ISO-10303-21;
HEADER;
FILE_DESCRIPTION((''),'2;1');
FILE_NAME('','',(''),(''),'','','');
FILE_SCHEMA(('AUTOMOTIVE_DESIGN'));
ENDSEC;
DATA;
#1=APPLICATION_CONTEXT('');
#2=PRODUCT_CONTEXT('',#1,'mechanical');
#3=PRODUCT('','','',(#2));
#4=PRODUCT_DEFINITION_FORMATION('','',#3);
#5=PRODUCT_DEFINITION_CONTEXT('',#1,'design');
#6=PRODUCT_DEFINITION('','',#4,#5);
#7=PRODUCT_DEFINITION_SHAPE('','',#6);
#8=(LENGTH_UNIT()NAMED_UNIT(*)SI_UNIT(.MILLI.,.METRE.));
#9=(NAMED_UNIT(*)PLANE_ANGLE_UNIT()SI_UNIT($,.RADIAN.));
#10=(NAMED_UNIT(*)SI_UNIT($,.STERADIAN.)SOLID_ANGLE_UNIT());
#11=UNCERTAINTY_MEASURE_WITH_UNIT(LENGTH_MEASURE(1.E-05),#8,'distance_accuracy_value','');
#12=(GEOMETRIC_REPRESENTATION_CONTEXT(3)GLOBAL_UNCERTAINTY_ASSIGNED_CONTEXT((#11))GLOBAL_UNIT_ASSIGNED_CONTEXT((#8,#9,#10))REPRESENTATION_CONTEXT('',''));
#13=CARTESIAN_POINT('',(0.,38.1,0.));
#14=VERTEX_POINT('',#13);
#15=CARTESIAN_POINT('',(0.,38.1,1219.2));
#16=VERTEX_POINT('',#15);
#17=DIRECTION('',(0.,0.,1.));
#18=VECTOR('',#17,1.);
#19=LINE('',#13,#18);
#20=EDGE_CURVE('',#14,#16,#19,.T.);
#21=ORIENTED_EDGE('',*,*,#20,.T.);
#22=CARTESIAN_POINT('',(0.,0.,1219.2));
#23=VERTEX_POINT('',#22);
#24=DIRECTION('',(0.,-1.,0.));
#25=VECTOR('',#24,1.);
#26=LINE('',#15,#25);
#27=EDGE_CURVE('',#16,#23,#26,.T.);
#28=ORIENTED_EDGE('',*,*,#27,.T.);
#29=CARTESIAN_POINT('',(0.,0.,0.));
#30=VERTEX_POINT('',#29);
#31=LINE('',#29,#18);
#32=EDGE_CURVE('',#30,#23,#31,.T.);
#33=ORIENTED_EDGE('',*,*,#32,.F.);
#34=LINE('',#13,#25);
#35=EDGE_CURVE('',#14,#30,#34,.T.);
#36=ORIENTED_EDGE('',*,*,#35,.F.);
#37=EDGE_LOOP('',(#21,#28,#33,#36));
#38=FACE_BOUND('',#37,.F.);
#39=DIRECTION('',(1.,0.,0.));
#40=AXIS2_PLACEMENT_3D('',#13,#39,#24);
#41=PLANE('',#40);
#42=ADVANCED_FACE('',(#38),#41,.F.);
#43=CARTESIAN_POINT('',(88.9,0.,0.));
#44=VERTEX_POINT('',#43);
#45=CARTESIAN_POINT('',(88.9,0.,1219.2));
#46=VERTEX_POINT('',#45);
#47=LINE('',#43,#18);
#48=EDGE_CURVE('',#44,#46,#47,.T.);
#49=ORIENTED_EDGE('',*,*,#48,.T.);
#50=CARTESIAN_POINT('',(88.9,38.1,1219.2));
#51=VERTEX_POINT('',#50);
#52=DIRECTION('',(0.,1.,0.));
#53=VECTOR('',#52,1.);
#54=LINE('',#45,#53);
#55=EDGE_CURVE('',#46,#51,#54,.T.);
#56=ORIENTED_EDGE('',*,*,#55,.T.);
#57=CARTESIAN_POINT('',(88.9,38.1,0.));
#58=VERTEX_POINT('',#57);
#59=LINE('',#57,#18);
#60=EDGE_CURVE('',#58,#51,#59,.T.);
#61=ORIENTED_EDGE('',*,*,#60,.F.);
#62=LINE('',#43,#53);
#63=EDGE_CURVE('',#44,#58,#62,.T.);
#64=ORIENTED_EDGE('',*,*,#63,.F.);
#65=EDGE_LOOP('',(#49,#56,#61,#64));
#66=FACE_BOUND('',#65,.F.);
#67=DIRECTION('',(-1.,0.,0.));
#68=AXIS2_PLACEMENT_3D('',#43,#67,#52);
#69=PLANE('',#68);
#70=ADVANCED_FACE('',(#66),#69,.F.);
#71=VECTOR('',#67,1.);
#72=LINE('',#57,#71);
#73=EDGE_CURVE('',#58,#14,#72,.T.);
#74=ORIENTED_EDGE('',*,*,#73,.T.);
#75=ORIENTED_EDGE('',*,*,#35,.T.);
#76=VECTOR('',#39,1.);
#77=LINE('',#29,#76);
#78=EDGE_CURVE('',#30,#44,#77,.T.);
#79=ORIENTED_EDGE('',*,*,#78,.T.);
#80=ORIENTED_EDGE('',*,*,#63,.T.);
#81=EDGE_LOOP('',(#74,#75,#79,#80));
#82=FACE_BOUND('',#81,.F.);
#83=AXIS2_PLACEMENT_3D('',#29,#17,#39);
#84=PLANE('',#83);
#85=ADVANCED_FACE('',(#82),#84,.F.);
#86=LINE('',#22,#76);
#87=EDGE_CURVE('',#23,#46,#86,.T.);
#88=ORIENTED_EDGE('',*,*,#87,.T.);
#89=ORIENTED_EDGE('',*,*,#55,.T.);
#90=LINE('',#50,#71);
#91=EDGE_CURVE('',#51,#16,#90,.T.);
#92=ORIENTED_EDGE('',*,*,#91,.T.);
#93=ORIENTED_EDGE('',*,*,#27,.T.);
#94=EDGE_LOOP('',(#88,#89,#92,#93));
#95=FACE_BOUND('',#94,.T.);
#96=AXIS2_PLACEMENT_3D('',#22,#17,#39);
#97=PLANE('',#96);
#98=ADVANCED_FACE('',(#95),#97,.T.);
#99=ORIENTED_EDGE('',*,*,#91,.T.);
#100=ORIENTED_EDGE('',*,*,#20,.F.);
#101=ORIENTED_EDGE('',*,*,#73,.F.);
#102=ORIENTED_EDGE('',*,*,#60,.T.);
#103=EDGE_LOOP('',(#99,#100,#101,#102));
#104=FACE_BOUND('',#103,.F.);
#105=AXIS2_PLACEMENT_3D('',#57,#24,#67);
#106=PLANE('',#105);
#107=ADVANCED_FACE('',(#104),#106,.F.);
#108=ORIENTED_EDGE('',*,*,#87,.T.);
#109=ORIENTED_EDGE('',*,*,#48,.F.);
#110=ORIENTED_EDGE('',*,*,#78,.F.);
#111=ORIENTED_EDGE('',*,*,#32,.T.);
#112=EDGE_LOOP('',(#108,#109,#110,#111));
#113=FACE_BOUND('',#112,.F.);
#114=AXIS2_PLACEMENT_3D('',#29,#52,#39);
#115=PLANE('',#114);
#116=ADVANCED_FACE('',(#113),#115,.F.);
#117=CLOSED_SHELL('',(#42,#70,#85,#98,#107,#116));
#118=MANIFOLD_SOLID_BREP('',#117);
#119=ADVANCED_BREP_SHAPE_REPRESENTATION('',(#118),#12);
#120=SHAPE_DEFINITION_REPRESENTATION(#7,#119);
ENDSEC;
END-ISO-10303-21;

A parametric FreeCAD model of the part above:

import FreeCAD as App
import Part
import Sketcher
Q = App.Units.Quantity

doc = App.newDocument("Part")
body = doc.addObject("PartDesign::Body", "Body")

# Sketch on XY plane
sketch1 = doc.addObject("Sketcher::SketchObject", "Sketch")
body.addObject(sketch1)
sketch1.AttachmentSupport = (doc.XY_Plane, [""])
sketch1.MapMode = "FlatFace"
sketch1.addGeometry([
    Part.LineSegment(App.Vector(0, 38.1, 0), App.Vector(0, 0, 0)),
    Part.LineSegment(App.Vector(0, 0, 0), App.Vector(88.9, 0, 0)),
    Part.LineSegment(App.Vector(88.9, 0, 0), App.Vector(88.9, 38.1, 0)),
    Part.LineSegment(App.Vector(88.9, 38.1, 0), App.Vector(0, 38.1, 0)),
], False)
sketch1.addConstraint([
    Sketcher.Constraint("Coincident", 0, 2, 1, 1),
    Sketcher.Constraint("Coincident", 1, 2, 2, 1),
    Sketcher.Constraint("Coincident", 2, 2, 3, 1),
    Sketcher.Constraint("Coincident", 3, 2, 0, 1),
    Sketcher.Constraint("Vertical", 0),
    Sketcher.Constraint("Horizontal", 1),
    Sketcher.Constraint("Vertical", 2),
    Sketcher.Constraint("Horizontal", 3),
    Sketcher.Constraint("Coincident", 0, 2, -1, 1),
    Sketcher.Constraint("DistanceX", 1, 1, 1, 2, Q("3.5 in")),
    Sketcher.Constraint("DistanceY", 0, 2, 0, 1, Q("1.5 in")),
])
pad1 = doc.addObject("PartDesign::Pad", "Pad")
body.addObject(pad1)
pad1.Profile = sketch1
pad1.Length = Q("48 in")

doc.recompute()
